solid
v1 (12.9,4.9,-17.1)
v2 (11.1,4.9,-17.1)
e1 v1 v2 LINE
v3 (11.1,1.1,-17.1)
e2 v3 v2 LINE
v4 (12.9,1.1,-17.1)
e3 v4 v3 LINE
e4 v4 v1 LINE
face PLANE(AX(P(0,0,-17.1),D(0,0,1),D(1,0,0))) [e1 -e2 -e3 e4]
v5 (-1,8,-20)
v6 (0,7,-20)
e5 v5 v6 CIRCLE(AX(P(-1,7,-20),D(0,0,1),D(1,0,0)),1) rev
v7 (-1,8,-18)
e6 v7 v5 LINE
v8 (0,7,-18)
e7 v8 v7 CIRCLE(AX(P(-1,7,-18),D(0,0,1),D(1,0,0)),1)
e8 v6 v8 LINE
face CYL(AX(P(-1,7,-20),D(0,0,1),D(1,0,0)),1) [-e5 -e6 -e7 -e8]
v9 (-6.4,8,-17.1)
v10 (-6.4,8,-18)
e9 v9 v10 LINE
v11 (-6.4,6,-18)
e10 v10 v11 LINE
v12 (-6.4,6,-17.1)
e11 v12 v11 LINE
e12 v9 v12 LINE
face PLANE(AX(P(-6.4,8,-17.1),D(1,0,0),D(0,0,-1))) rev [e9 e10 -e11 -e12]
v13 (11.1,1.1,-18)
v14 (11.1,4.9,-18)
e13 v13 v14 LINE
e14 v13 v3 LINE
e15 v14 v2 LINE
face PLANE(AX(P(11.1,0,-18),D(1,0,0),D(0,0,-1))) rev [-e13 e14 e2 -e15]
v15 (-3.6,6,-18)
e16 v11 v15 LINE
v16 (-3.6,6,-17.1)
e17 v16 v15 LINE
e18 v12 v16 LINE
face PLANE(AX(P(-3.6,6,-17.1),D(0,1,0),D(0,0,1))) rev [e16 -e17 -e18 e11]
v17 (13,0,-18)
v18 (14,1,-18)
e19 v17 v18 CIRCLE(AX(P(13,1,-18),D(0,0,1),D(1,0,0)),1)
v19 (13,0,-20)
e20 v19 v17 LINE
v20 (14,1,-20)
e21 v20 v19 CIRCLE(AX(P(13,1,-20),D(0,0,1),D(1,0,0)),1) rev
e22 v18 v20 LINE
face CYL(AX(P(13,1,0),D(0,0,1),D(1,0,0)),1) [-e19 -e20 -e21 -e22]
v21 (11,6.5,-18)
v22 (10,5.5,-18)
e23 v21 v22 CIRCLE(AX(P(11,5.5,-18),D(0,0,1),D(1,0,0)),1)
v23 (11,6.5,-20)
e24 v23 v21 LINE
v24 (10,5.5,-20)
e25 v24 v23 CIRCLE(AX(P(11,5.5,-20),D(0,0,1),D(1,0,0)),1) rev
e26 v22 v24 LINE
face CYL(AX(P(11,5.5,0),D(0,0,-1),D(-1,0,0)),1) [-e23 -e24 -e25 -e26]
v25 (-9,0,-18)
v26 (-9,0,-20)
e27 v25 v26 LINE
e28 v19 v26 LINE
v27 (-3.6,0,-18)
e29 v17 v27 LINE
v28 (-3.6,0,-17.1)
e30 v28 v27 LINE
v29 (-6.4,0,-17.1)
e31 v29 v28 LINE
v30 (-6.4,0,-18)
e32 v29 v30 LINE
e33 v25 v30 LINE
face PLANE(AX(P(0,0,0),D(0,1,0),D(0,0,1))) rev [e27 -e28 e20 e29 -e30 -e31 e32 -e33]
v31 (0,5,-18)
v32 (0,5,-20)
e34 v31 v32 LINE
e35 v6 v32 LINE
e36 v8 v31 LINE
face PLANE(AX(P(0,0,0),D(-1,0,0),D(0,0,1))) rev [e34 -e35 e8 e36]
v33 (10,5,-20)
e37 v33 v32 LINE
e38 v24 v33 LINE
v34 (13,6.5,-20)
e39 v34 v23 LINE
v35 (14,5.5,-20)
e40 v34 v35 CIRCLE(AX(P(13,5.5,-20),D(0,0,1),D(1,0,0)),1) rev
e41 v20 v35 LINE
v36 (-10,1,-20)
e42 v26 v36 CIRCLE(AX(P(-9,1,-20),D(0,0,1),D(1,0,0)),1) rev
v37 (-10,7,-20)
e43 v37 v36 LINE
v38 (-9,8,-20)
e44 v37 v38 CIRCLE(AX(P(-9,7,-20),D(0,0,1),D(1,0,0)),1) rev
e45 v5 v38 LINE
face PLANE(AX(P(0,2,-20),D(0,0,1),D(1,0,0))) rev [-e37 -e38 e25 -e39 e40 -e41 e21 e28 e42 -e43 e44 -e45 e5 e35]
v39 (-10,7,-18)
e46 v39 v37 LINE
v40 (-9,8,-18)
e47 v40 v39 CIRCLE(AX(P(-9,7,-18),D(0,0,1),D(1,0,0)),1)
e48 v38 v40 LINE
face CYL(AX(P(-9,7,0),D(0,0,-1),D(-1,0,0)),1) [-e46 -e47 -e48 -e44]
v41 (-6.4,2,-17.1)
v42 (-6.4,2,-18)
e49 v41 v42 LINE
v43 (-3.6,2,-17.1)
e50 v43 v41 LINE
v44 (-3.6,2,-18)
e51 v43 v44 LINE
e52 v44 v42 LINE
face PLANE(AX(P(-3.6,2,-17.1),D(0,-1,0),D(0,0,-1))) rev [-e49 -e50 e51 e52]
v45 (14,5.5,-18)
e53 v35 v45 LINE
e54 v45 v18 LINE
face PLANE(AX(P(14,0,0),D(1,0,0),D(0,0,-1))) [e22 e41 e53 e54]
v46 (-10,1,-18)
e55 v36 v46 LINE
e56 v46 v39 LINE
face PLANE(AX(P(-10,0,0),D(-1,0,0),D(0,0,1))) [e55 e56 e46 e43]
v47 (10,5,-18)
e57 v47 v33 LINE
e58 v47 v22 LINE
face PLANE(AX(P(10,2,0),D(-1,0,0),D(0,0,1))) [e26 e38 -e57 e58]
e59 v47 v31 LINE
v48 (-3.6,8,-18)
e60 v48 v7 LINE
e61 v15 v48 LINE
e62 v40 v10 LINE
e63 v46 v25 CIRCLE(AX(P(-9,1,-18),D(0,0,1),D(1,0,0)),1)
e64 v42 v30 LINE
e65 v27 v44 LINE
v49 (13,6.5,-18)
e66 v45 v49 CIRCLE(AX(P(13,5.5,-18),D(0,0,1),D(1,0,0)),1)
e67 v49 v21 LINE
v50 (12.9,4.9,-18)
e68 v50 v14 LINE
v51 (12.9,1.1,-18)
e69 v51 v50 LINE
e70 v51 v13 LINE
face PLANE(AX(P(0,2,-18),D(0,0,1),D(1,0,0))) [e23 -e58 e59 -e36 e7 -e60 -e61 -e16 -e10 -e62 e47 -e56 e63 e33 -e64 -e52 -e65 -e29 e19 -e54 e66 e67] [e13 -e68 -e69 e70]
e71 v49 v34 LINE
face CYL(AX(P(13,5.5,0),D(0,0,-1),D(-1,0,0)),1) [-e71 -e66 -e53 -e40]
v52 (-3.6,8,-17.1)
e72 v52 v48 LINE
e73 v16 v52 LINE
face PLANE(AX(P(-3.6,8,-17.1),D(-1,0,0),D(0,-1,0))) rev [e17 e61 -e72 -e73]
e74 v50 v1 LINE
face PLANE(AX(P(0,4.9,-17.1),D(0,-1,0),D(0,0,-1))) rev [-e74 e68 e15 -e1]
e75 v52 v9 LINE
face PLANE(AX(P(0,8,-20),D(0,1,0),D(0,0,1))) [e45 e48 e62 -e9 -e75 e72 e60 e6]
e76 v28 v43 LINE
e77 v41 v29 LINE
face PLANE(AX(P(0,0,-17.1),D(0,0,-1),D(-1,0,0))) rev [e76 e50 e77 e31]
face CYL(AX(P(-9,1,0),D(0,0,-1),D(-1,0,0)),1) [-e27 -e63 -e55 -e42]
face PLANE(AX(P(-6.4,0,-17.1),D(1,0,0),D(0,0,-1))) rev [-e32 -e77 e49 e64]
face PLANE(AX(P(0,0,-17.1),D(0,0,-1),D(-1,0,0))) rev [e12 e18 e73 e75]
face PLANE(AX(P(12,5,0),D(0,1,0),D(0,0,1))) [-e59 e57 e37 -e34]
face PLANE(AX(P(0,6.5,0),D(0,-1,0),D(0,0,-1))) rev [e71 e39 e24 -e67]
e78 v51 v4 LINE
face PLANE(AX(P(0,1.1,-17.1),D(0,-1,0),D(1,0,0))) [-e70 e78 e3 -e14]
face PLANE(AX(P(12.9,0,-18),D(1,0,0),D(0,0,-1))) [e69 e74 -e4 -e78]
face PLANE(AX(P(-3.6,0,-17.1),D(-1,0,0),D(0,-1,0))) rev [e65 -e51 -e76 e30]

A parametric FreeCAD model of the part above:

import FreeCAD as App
import Part
import Sketcher

V = App.Vector


def edges_at(feature, points):
    """Names of the edges that pass closest to the given points."""
    edges = feature.Shape.Edges
    near = lambda p: min(range(len(edges)), key=lambda i: edges[i].distToShape(Part.Vertex(*p))[0])
    return sorted({f"Edge{near(p) + 1}" for p in points})

doc = App.newDocument("Part")
params = doc.addObject("Spreadsheet::Sheet", "Params")
for row, (alias, value) in enumerate([
    ("sketch1_width", "14 mm"),
    ("sketch1_width2", "10 mm"),
    ("sketch1_height", "22 mm"),
    ("sketch1_height2", "18 mm"),
    ("pad1_length", "2 mm"),
    ("sketch2_width", "2 mm"),
    ("sketch2_height", "22 mm"),
    ("pad2_length", "4.5 mm"),
    ("sketch3_width", "8 mm"),
    ("sketch3_width2", "4 mm"),
    ("sketch3_height", "22 mm"),
    ("sketch3_height2", "18 mm"),
    ("pad3_length", "2 mm"),
    ("sketch4_width", "8 mm"),
    ("sketch4_height", "20 mm"),
    ("pocket1_length", "26 mm"),
    ("sketch5_width", "0.9 mm"),
    ("sketch5_height", "1.9 mm"),
    ("sketch5_height2", "3.8 mm"),
    ("pad4_length", "0.9 mm"),
    ("sketch6_width", "8 mm"),
    ("sketch6_height", "2 mm"),
    ("pad5_length", "8 mm"),
    ("sketch7_height", "2 mm"),
    ("sketch7_width", "2.8 mm"),
    ("pad6_length", "0.9 mm"),
    ("sketch8_width", "0.9 mm"),
    ("sketch9_width", "3 mm"),
    ("sketch9_height", "2 mm"),
    ("sketch10_height", "2 mm"),
    ("sketch10_width", "1.6 mm"),
    ("sketch10_width2", "3.8 mm"),
    ("sketch10_width3", "1.1 mm"),
    ("sketch10_height2", "0.9 mm"),
    ("pad8_length", "2 mm"),
    ("sketch11_width", "1.1 mm"),
    ("sketch11_height", "3.8 mm"),
    ("pad9_length", "0.9 mm"),
    ("sketch12_width", "1.1 mm"),
    ("sketch12_height", "3.8 mm"),
    ("pocket3_length", "0.9 mm"),
    ("fillet_radius", "1 mm"),
], start=1):
    params.set(f"A{row}", alias)
    params.set(f"B{row}", "=" + value)
    params.setAlias(f"B{row}", alias)

body = doc.addObject("PartDesign::Body", "Body")

sketch1 = body.newObject("Sketcher::SketchObject", "Sketch")
sketch1.AttachmentSupport = (doc.getObject("XZ_Plane"), [""])
sketch1.MapMode = "FlatFace"
sketch1.addGeometry(Part.LineSegment(V(-2, -20, 0), V(-2, 2, 0)), False)
sketch1.addGeometry(Part.LineSegment(V(-2, 2, 0), V(12, 2, 0)), False)
sketch1.addGeometry(Part.LineSegment(V(12, 2, 0), V(12, -20, 0)), False)
sketch1.addGeometry(Part.LineSegment(V(12, -20, 0), V(-2, -20, 0)), False)
sketch1.addGeometry(Part.LineSegment(V(10, 0, 0), V(0, 0, 0)), False)
sketch1.addGeometry(Part.LineSegment(V(0, 0, 0), V(0, -18, 0)), False)
sketch1.addGeometry(Part.LineSegment(V(0, -18, 0), V(10, -18, 0)), False)
sketch1.addGeometry(Part.LineSegment(V(10, -18, 0), V(10, 0, 0)), False)
sketch1.addConstraint(Sketcher.Constraint("Coincident", 0, 2, 1, 1))
sketch1.addConstraint(Sketcher.Constraint("Coincident", 1, 2, 2, 1))
sketch1.addConstraint(Sketcher.Constraint("Coincident", 2, 2, 3, 1))
sketch1.addConstraint(Sketcher.Constraint("Coincident", 3, 2, 0, 1))
sketch1.addConstraint(Sketcher.Constraint("Coincident", 4, 2, 5, 1))
sketch1.addConstraint(Sketcher.Constraint("Coincident", 5, 2, 6, 1))
sketch1.addConstraint(Sketcher.Constraint("Coincident", 6, 2, 7, 1))
sketch1.addConstraint(Sketcher.Constraint("Coincident", 7, 2, 4, 1))
sketch1.addConstraint(Sketcher.Constraint("Vertical", 0))
sketch1.addConstraint(Sketcher.Constraint("Horizontal", 1))
sketch1.addConstraint(Sketcher.Constraint("Vertical", 2))
sketch1.addConstraint(Sketcher.Constraint("Horizontal", 3))
sketch1.addConstraint(Sketcher.Constraint("Horizontal", 4))
sketch1.addConstraint(Sketcher.Constraint("Vertical", 5))
sketch1.addConstraint(Sketcher.Constraint("Horizontal", 6))
sketch1.addConstraint(Sketcher.Constraint("Vertical", 7))
sketch1.addConstraint(Sketcher.Constraint("Coincident", 4, 2, -1, 1))
sketch1.addConstraint(Sketcher.Constraint("DistanceX", 1, 1, 1, 2, 14.0))
sketch1.addConstraint(Sketcher.Constraint("DistanceX", 4, 2, 4, 1, 10.0))
sketch1.addConstraint(Sketcher.Constraint("DistanceY", 0, 1, 0, 2, 22.0))
sketch1.addConstraint(Sketcher.Constraint("DistanceY", 5, 2, 5, 1, 18.0))
sketch1.addConstraint(Sketcher.Constraint("DistanceX", 0, 2, -1, 1, 2.0))
sketch1.addConstraint(Sketcher.Constraint("DistanceY", -1, 1, 0, 2, 2.0))
sketch1.setExpression("Constraints[17]", "Params.sketch1_width")
sketch1.setExpression("Constraints[18]", "Params.sketch1_width2")
sketch1.setExpression("Constraints[19]", "Params.sketch1_height")
sketch1.setExpression("Constraints[20]", "Params.sketch1_height2")
pad1 = body.newObject("PartDesign::Pad", "Pad")
pad1.Profile = sketch1
pad1.setExpression("Length", "Params.pad1_length")
pad1.Reversed = True

sketch2 = body.newObject("Sketcher::SketchObject", "Sketch001")
sketch2.AttachmentSupport = (doc.getObject("XZ_Plane"), [""])
sketch2.MapMode = "FlatFace"
sketch2.AttachmentOffset = App.Placement(V(0, 0, -2), App.Rotation())
sketch2.addGeometry(Part.LineSegment(V(10, -20, 0), V(10, 2, 0)), False)
sketch2.addGeometry(Part.LineSegment(V(10, 2, 0), V(12, 2, 0)), False)
sketch2.addGeometry(Part.LineSegment(V(12, 2, 0), V(12, -20, 0)), False)
sketch2.addGeometry(Part.LineSegment(V(12, -20, 0), V(10, -20, 0)), False)
sketch2.addConstraint(Sketcher.Constraint("Coincident", 0, 2, 1, 1))
sketch2.addConstraint(Sketcher.Constraint("Coincident", 1, 2, 2, 1))
sketch2.addConstraint(Sketcher.Constraint("Coincident", 2, 2, 3, 1))
sketch2.addConstraint(Sketcher.Constraint("Coincident", 3, 2, 0, 1))
sketch2.addConstraint(Sketcher.Constraint("Vertical", 0))
sketch2.addConstraint(Sketcher.Constraint("Horizontal", 1))
sketch2.addConstraint(Sketcher.Constraint("Vertical", 2))
sketch2.addConstraint(Sketcher.Constraint("Horizontal", 3))
sketch2.addConstraint(Sketcher.Constraint("DistanceX", 1, 1, 1, 2, 2.0))
sketch2.addConstraint(Sketcher.Constraint("DistanceY", 0, 1, 0, 2, 22.0))
sketch2.addConstraint(Sketcher.Constraint("DistanceX", -1, 1, 0, 2, 10.0))
sketch2.addConstraint(Sketcher.Constraint("DistanceY", -1, 1, 0, 2, 2.0))
sketch2.setExpression("Constraints[8]", "Params.sketch2_width")
sketch2.setExpression("Constraints[9]", "Params.sketch2_height")
pad2 = body.newObject("PartDesign::Pad", "Pad001")
pad2.Profile = sketch2
pad2.setExpression("Length", "Params.pad2_length")
pad2.Reversed = True

sketch3 = body.newObject("Sketcher::SketchObject", "Sketch002")
sketch3.AttachmentSupport = (doc.getObject("YZ_Plane"), [""])
sketch3.MapMode = "FlatFace"
sketch3.AttachmentOffset = App.Placement(V(0, 0, -2), App.Rotation())
sketch3.addGeometry(Part.LineSegment(V(8, -20, 0), V(0, -20, 0)), False)
sketch3.addGeometry(Part.LineSegment(V(0, -20, 0), V(0, 2, 0)), False)
sketch3.addGeometry(Part.LineSegment(V(0, 2, 0), V(8, 2, 0)), False)
sketch3.addGeometry(Part.LineSegment(V(8, 2, 0), V(8, -20, 0)), False)
sketch3.addGeometry(Part.LineSegment(V(2, 0, 0), V(2, -18, 0)), False)
sketch3.addGeometry(Part.LineSegment(V(2, -18, 0), V(6, -18, 0)), False)
sketch3.addGeometry(Part.LineSegment(V(6, -18, 0), V(6, 0, 0)), False)
sketch3.addGeometry(Part.LineSegment(V(6, 0, 0), V(2, 0, 0)), False)
sketch3.addConstraint(Sketcher.Constraint("Coincident", 0, 2, 1, 1))
sketch3.addConstraint(Sketcher.Constraint("Coincident", 1, 2, 2, 1))
sketch3.addConstraint(Sketcher.Constraint("Coincident", 2, 2, 3, 1))
sketch3.addConstraint(Sketcher.Constraint("Coincident", 3, 2, 0, 1))
sketch3.addConstraint(Sketcher.Constraint("Coincident", 4, 2, 5, 1))
sketch3.addConstraint(Sketcher.Constraint("Coincident", 5, 2, 6, 1))
sketch3.addConstraint(Sketcher.Constraint("Coincident", 6, 2, 7, 1))
sketch3.addConstraint(Sketcher.Constraint("Coincident", 7, 2, 4, 1))
sketch3.addConstraint(Sketcher.Constraint("Horizontal", 0))
sketch3.addConstraint(Sketcher.Constraint("Vertical", 1))
sketch3.addConstraint(Sketcher.Constraint("Horizontal", 2))
sketch3.addConstraint(Sketcher.Constraint("Vertical", 3))
sketch3.addConstraint(Sketcher.Constraint("Vertical", 4))
sketch3.addConstraint(Sketcher.Constraint("Horizontal", 5))
sketch3.addConstraint(Sketcher.Constraint("Vertical", 6))
sketch3.addConstraint(Sketcher.Constraint("Horizontal", 7))
sketch3.addConstraint(Sketcher.Constraint("PointOnObject", 0, 2, -2))
sketch3.addConstraint(Sketcher.Constraint("PointOnObject", 6, 2, -1))
sketch3.addConstraint(Sketcher.Constraint("DistanceX", 0, 2, 0, 1, 8.0))
sketch3.addConstraint(Sketcher.Constraint("DistanceX", 5, 1, 5, 2, 4.0))
sketch3.addConstraint(Sketcher.Constraint("DistanceY", 1, 1, 1, 2, 22.0))
sketch3.addConstraint(Sketcher.Constraint("DistanceY", 4, 2, 4, 1, 18.0))
sketch3.addConstraint(Sketcher.Constraint("DistanceY", 0, 2, -1, 1, 20.0))
sketch3.addConstraint(Sketcher.Constraint("DistanceX", -1, 1, 4, 2, 2.0))
sketch3.setExpression("Constraints[18]", "Params.sketch3_width")
sketch3.setExpression("Constraints[19]", "Params.sketch3_width2")
sketch3.setExpression("Constraints[20]", "Params.sketch3_height")
sketch3.setExpression("Constraints[21]", "Params.sketch3_height2")
pad3 = body.newObject("PartDesign::Pad", "Pad002")
pad3.Profile = sketch3
pad3.setExpression("Length", "Params.pad3_length")

sketch4 = body.newObject("Sketcher::SketchObject", "Sketch003")
sketch4.AttachmentSupport = (doc.getObject("YZ_Plane"), [""])
sketch4.MapMode = "FlatFace"
sketch4.AttachmentOffset = App.Placement(V(0, 0, 12), App.Rotation())
sketch4.addGeometry(Part.LineSegment(V(8, 2, 0), V(0, 2, 0)), False)
sketch4.addGeometry(Part.LineSegment(V(0, 2, 0), V(0, -18, 0)), False)
sketch4.addGeometry(Part.LineSegment(V(0, -18, 0), V(8, -18, 0)), False)
sketch4.addGeometry(Part.LineSegment(V(8, -18, 0), V(8, 2, 0)), False)
sketch4.addConstraint(Sketcher.Constraint("Coincident", 0, 2, 1, 1))
sketch4.addConstraint(Sketcher.Constraint("Coincident", 1, 2, 2, 1))
sketch4.addConstraint(Sketcher.Constraint("Coincident", 2, 2, 3, 1))
sketch4.addConstraint(Sketcher.Constraint("Coincident", 3, 2, 0, 1))
sketch4.addConstraint(Sketcher.Constraint("Horizontal", 0))
sketch4.addConstraint(Sketcher.Constraint("Vertical", 1))
sketch4.addConstraint(Sketcher.Constraint("Horizontal", 2))
sketch4.addConstraint(Sketcher.Constraint("Vertical", 3))
sketch4.addConstraint(Sketcher.Constraint("PointOnObject", 0, 2, -2))
sketch4.addConstraint(Sketcher.Constraint("DistanceX", 0, 2, 0, 1, 8.0))
sketch4.addConstraint(Sketcher.Constraint("DistanceY", 1, 2, 1, 1, 20.0))
sketch4.addConstraint(Sketcher.Constraint("DistanceY", -1, 1, 0, 2, 2.0))
sketch4.setExpression("Constraints[9]", "Params.sketch4_width")
sketch4.setExpression("Constraints[10]", "Params.sketch4_height")
pocket1 = body.newObject("PartDesign::Pocket", "Pocket")
pocket1.Profile = sketch4
pocket1.setExpression("Length", "Params.pocket1_length")

sketch5 = body.newObject("Sketcher::SketchObject", "Sketch004")
sketch5.AttachmentSupport = (doc.getObject("XY_Plane"), [""])
sketch5.MapMode = "FlatFace"
sketch5.AttachmentOffset = App.Placement(V(0, 0, -18), App.Rotation())
sketch5.addGeometry(Part.LineSegment(V(-2, 8, 0), V(-2, 6.1, 0)), False)
sketch5.addGeometry(Part.LineSegment(V(-2, 6.1, 0), V(-1.1, 6.1, 0)), False)
sketch5.addGeometry(Part.LineSegment(V(-1.1, 6.1, 0), V(-1.1, 8, 0)), False)
sketch5.addGeometry(Part.LineSegment(V(-1.1, 8, 0), V(-2, 8, 0)), False)
sketch5.addGeometry(Part.LineSegment(V(-2, 1.9, 0), V(-2, 0, 0)), False)
sketch5.addGeometry(Part.LineSegment(V(-2, 0, 0), V(-1.1, 0, 0)), False)
sketch5.addGeometry(Part.LineSegment(V(-1.1, 0, 0), V(-1.1, 1.9, 0)), False)
sketch5.addGeometry(Part.LineSegment(V(-1.1, 1.9, 0), V(-2, 1.9, 0)), False)
sketch5.addGeometry(Part.LineSegment(V(11.1, 4.9, 0), V(11.1, 1.1, 0)), False)
sketch5.addGeometry(Part.LineSegment(V(11.1, 1.1, 0), V(12, 1.1, 0)), False)
sketch5.addGeometry(Part.LineSegment(V(12, 1.1, 0), V(12, 4.9, 0)), False)
sketch5.addGeometry(Part.LineSegment(V(12, 4.9, 0), V(11.1, 4.9, 0)), False)
sketch5.addConstraint(Sketcher.Constraint("Coincident", 0, 2, 1, 1))
sketch5.addConstraint(Sketcher.Constraint("Coincident", 1, 2, 2, 1))
sketch5.addConstraint(Sketcher.Constraint("Coincident", 2, 2, 3, 1))
sketch5.addConstraint(Sketcher.Constraint("Coincident", 3, 2, 0, 1))
sketch5.addConstraint(Sketcher.Constraint("Coincident", 4, 2, 5, 1))
sketch5.addConstraint(Sketcher.Constraint("Coincident", 5, 2, 6, 1))
sketch5.addConstraint(Sketcher.Constraint("Coincident", 6, 2, 7, 1))
sketch5.addConstraint(Sketcher.Constraint("Coincident", 7, 2, 4, 1))
sketch5.addConstraint(Sketcher.Constraint("Coincident", 8, 2, 9, 1))
sketch5.addConstraint(Sketcher.Constraint("Coincident", 9, 2, 10, 1))
sketch5.addConstraint(Sketcher.Constraint("Coincident", 10, 2, 11, 1))
sketch5.addConstraint(Sketcher.Constraint("Coincident", 11, 2, 8, 1))
sketch5.addConstraint(Sketcher.Constraint("Vertical", 0))
sketch5.addConstraint(Sketcher.Constraint("Horizontal", 1))
sketch5.addConstraint(Sketcher.Constraint("Vertical", 2))
sketch5.addConstraint(Sketcher.Constraint("Horizontal", 3))
sketch5.addConstraint(Sketcher.Constraint("Vertical", 4))
sketch5.addConstraint(Sketcher.Constraint("Horizontal", 5))
sketch5.addConstraint(Sketcher.Constraint("Vertical", 6))
sketch5.addConstraint(Sketcher.Constraint("Horizontal", 7))
sketch5.addConstraint(Sketcher.Constraint("Vertical", 8))
sketch5.addConstraint(Sketcher.Constraint("Horizontal", 9))
sketch5.addConstraint(Sketcher.Constraint("Vertical", 10))
sketch5.addConstraint(Sketcher.Constraint("Horizontal", 11))
sketch5.addConstraint(Sketcher.Constraint("PointOnObject", 4, 2, -1))
sketch5.addConstraint(Sketcher.Constraint("Vertical", 3, 2, 4, 2))
sketch5.addConstraint(Sketcher.Constraint("Vertical", 2, 2, 5, 2))
sketch5.addConstraint(Sketcher.Constraint("Equal", 7, 9))
sketch5.addConstraint(Sketcher.Constraint("Equal", 2, 4))
sketch5.addConstraint(Sketcher.Constraint("DistanceX", 1, 1, 1, 2, 0.9))
sketch5.addConstraint(Sketcher.Constraint("DistanceY", 0, 2, 0, 1, 1.9))
sketch5.addConstraint(Sketcher.Constraint("DistanceY", 8, 2, 8, 1, 3.8))
sketch5.addConstraint(Sketcher.Constraint("DistanceX", 0, 2, -1, 1, 2.0))
sketch5.addConstraint(Sketcher.Constraint("DistanceY", -1, 1, 2, 2, 8.0))
sketch5.addConstraint(Sketcher.Constraint("DistanceX", -1, 1, 9, 2, 12.0))
sketch5.addConstraint(Sketcher.Constraint("DistanceY", 8, 2, 1, 2, 5.0))
sketch5.setExpression("Constraints[29]", "Params.sketch5_width")
sketch5.setExpression("Constraints[30]", "Params.sketch5_height")
sketch5.setExpression("Constraints[31]", "Params.sketch5_height2")
pad4 = body.newObject("PartDesign::Pad", "Pad003")
pad4.Profile = sketch5
pad4.setExpression("Length", "Params.pad4_length")

sketch6 = body.newObject("Sketcher::SketchObject", "Sketch005")
sketch6.AttachmentSupport = (doc.getObject("YZ_Plane"), [""])
sketch6.MapMode = "FlatFace"
sketch6.AttachmentOffset = App.Placement(V(0, 0, -2), App.Rotation())
sketch6.addGeometry(Part.LineSegment(V(8, -18, 0), V(8, -20, 0)), False)
sketch6.addGeometry(Part.LineSegment(V(8, -20, 0), V(0, -20, 0)), False)
sketch6.addGeometry(Part.LineSegment(V(0, -20, 0), V(0, -18, 0)), False)
sketch6.addGeometry(Part.LineSegment(V(0, -18, 0), V(8, -18, 0)), False)
sketch6.addConstraint(Sketcher.Constraint("Coincident", 0, 2, 1, 1))
sketch6.addConstraint(Sketcher.Constraint("Coincident", 1, 2, 2, 1))
sketch6.addConstraint(Sketcher.Constraint("Coincident", 2, 2, 3, 1))
sketch6.addConstraint(Sketcher.Constraint("Coincident", 3, 2, 0, 1))
sketch6.addConstraint(Sketcher.Constraint("Vertical", 0))
sketch6.addConstraint(Sketcher.Constraint("Horizontal", 1))
sketch6.addConstraint(Sketcher.Constraint("Vertical", 2))
sketch6.addConstraint(Sketcher.Constraint("Horizontal", 3))
sketch6.addConstraint(Sketcher.Constraint("PointOnObject", 1, 2, -2))
sketch6.addConstraint(Sketcher.Constraint("DistanceX", 1, 2, 1, 1, 8.0))
sketch6.addConstraint(Sketcher.Constraint("DistanceY", 0, 2, 0, 1, 2.0))
sketch6.addConstraint(Sketcher.Constraint("DistanceY", 0, 2, -1, 1, 20.0))
sketch6.setExpression("Constraints[9]", "Params.sketch6_width")
sketch6.setExpression("Constraints[10]", "Params.sketch6_height")
pad5 = body.newObject("PartDesign::Pad", "Pad004")
pad5.Profile = sketch6
pad5.setExpression("Length", "Params.pad5_length")
pad5.Reversed = True

sketch7 = body.newObject("Sketcher::SketchObject", "Sketch006")
sketch7.AttachmentSupport = (doc.getObject("XY_Plane"), [""])
sketch7.MapMode = "FlatFace"
sketch7.AttachmentOffset = App.Placement(V(0, 0, -18), App.Rotation())
sketch7.addGeometry(Part.LineSegment(V(-6.4, 8, 0), V(-6.4, 6, 0)), False)
sketch7.addGeometry(Part.LineSegment(V(-6.4, 6, 0), V(-3.6, 6, 0)), False)
sketch7.addGeometry(Part.LineSegment(V(-3.6, 6, 0), V(-3.6, 8, 0)), False)
sketch7.addGeometry(Part.LineSegment(V(-3.6, 8, 0), V(-6.4, 8, 0)), False)
sketch7.addGeometry(Part.LineSegment(V(-6.4, 2, 0), V(-6.4, 0, 0)), False)
sketch7.addGeometry(Part.LineSegment(V(-6.4, 0, 0), V(-3.6, 0, 0)), False)
sketch7.addGeometry(Part.LineSegment(V(-3.6, 0, 0), V(-3.6, 2, 0)), False)
sketch7.addGeometry(Part.LineSegment(V(-3.6, 2, 0), V(-6.4, 2, 0)), False)
sketch7.addConstraint(Sketcher.Constraint("Coincident", 0, 2, 1, 1))
sketch7.addConstraint(Sketcher.Constraint("Coincident", 1, 2, 2, 1))
sketch7.addConstraint(Sketcher.Constraint("Coincident", 2, 2, 3, 1))
sketch7.addConstraint(Sketcher.Constraint("Coincident", 3, 2, 0, 1))
sketch7.addConstraint(Sketcher.Constraint("Coincident", 4, 2, 5, 1))
sketch7.addConstraint(Sketcher.Constraint("Coincident", 5, 2, 6, 1))
sketch7.addConstraint(Sketcher.Constraint("Coincident", 6, 2, 7, 1))
sketch7.addConstraint(Sketcher.Constraint("Coincident", 7, 2, 4, 1))
sketch7.addConstraint(Sketcher.Constraint("Vertical", 0))
sketch7.addConstraint(Sketcher.Constraint("Horizontal", 1))
sketch7.addConstraint(Sketcher.Constraint("Vertical", 2))
sketch7.addConstraint(Sketcher.Constraint("Horizontal", 3))
sketch7.addConstraint(Sketcher.Constraint("Vertical", 4))
sketch7.addConstraint(Sketcher.Constraint("Horizontal", 5))
sketch7.addConstraint(Sketcher.Constraint("Vertical", 6))
sketch7.addConstraint(Sketcher.Constraint("Horizontal", 7))
sketch7.addConstraint(Sketcher.Constraint("PointOnObject", 4, 2, -1))
sketch7.addConstraint(Sketcher.Constraint("Vertical", 3, 2, 4, 2))
sketch7.addConstraint(Sketcher.Constraint("Vertical", 2, 2, 5, 2))
sketch7.addConstraint(Sketcher.Constraint("Equal", 2, 4))
sketch7.addConstraint(Sketcher.Constraint("DistanceY", 0, 2, 0, 1, 2.0))
sketch7.addConstraint(Sketcher.Constraint("DistanceX", 1, 1, 1, 2, 2.8))
sketch7.addConstraint(Sketcher.Constraint("DistanceY", -1, 1, 0, 2, 6.0))
sketch7.addConstraint(Sketcher.Constraint("DistanceX", 0, 2, -1, 1, 6.4))
sketch7.setExpression("Constraints[20]", "Params.sketch7_height")
sketch7.setExpression("Constraints[21]", "Params.sketch7_width")
pad6 = body.newObject("PartDesign::Pad", "Pad005")
pad6.Profile = sketch7
pad6.setExpression("Length", "Params.pad6_length")

sketch8 = body.newObject("Sketcher::SketchObject", "Sketch007")
sketch8.AttachmentSupport = (doc.getObject("XZ_Plane"), [""])
sketch8.MapMode = "FlatFace"
sketch8.AttachmentOffset = App.Placement(V(0, 0, -8), App.Rotation())
sketch8.addGeometry(Part.LineSegment(V(-2, -18, 0), V(-2, -17.1, 0)), False)
sketch8.addGeometry(Part.LineSegment(V(-2, -17.1, 0), V(-1.1, -17.1, 0)), False)
sketch8.addGeometry(Part.LineSegment(V(-1.1, -17.1, 0), V(-1.1, -18, 0)), False)
sketch8.addGeometry(Part.LineSegment(V(-1.1, -18, 0), V(-2, -18, 0)), False)
sketch8.addConstraint(Sketcher.Constraint("Coincident", 0, 2, 1, 1))
sketch8.addConstraint(Sketcher.Constraint("Coincident", 1, 2, 2, 1))
sketch8.addConstraint(Sketcher.Constraint("Coincident", 2, 2, 3, 1))
sketch8.addConstraint(Sketcher.Constraint("Coincident", 3, 2, 0, 1))
sketch8.addConstraint(Sketcher.Constraint("Vertical", 0))
sketch8.addConstraint(Sketcher.Constraint("Horizontal", 1))
sketch8.addConstraint(Sketcher.Constraint("Vertical", 2))
sketch8.addConstraint(Sketcher.Constraint("Horizontal", 3))
sketch8.addConstraint(Sketcher.Constraint("Equal", 3, 0))
sketch8.addConstraint(Sketcher.Constraint("DistanceX", 1, 1, 1, 2, 0.9))
sketch8.addConstraint(Sketcher.Constraint("DistanceX", 0, 2, -1, 1, 2.0))
sketch8.addConstraint(Sketcher.Constraint("DistanceY", 2, 2, -1, 1, 18.0))
sketch8.setExpression("Constraints[9]", "Params.sketch8_width")
pocket2 = body.newObject("PartDesign::Pocket", "Pocket001")
pocket2.Profile = sketch8
pocket2.Type = "ThroughAll"
pocket2.Reversed = True

sketch9 = body.newObject("Sketcher::SketchObject", "Sketch008")
sketch9.AttachmentSupport = (doc.getObject("YZ_Plane"), [""])
sketch9.MapMode = "FlatFace"
sketch9.addGeometry(Part.LineSegment(V(5, -18, 0), V(2, -18, 0)), False)
sketch9.addGeometry(Part.LineSegment(V(2, -18, 0), V(2, -20, 0)), False)
sketch9.addGeometry(Part.LineSegment(V(2, -20, 0), V(5, -20, 0)), False)
sketch9.addGeometry(Part.LineSegment(V(5, -20, 0), V(5, -18, 0)), False)
sketch9.addConstraint(Sketcher.Constraint("Coincident", 0, 2, 1, 1))
sketch9.addConstraint(Sketcher.Constraint("Coincident", 1, 2, 2, 1))
sketch9.addConstraint(Sketcher.Constraint("Coincident", 2, 2, 3, 1))
sketch9.addConstraint(Sketcher.Constraint("Coincident", 3, 2, 0, 1))
sketch9.addConstraint(Sketcher.Constraint("Horizontal", 0))
sketch9.addConstraint(Sketcher.Constraint("Vertical", 1))
sketch9.addConstraint(Sketcher.Constraint("Horizontal", 2))
sketch9.addConstraint(Sketcher.Constraint("Vertical", 3))
sketch9.addConstraint(Sketcher.Constraint("DistanceX", 0, 2, 0, 1, 3.0))
sketch9.addConstraint(Sketcher.Constraint("DistanceY", 1, 2, 1, 1, 2.0))
sketch9.addConstraint(Sketcher.Constraint("DistanceX", -1, 1, 0, 2, 2.0))
sketch9.addConstraint(Sketcher.Constraint("DistanceY", 0, 2, -1, 1, 18.0))
sketch9.setExpression("Constraints[8]", "Params.sketch9_width")
sketch9.setExpression("Constraints[9]", "Params.sketch9_height")
pad7 = body.newObject("PartDesign::Pad", "Pad006")
pad7.Profile = sketch9
pad7.Type = "UpToFirst"

sketch10 = body.newObject("Sketcher::SketchObject", "Sketch009")
sketch10.AttachmentSupport = (doc.getObject("YZ_Plane"), [""])
sketch10.MapMode = "FlatFace"
sketch10.AttachmentOffset = App.Placement(V(0, 0, 12), App.Rotation())
sketch10.addGeometry(Part.LineSegment(V(6.5, -18, 0), V(4.9, -18, 0)), False)
sketch10.addGeometry(Part.LineSegment(V(4.9, -18, 0), V(4.9, -17.1, 0)), False)
sketch10.addGeometry(Part.LineSegment(V(4.9, -17.1, 0), V(1.1, -17.1, 0)), False)
sketch10.addGeometry(Part.LineSegment(V(1.1, -17.1, 0), V(1.1, -18, 0)), False)
sketch10.addGeometry(Part.LineSegment(V(1.1, -18, 0), V(0, -18, 0)), False)
sketch10.addGeometry(Part.LineSegment(V(0, -18, 0), V(0, -20, 0)), False)
sketch10.addGeometry(Part.LineSegment(V(0, -20, 0), V(6.5, -20, 0)), False)
sketch10.addGeometry(Part.LineSegment(V(6.5, -20, 0), V(6.5, -18, 0)), False)
sketch10.addConstraint(Sketcher.Constraint("Coincident", 0, 2, 1, 1))
sketch10.addConstraint(Sketcher.Constraint("Coincident", 1, 2, 2, 1))
sketch10.addConstraint(Sketcher.Constraint("Coincident", 2, 2, 3, 1))
sketch10.addConstraint(Sketcher.Constraint("Coincident", 3, 2, 4, 1))
sketch10.addConstraint(Sketcher.Constraint("Coincident", 4, 2, 5, 1))
sketch10.addConstraint(Sketcher.Constraint("Coincident", 5, 2, 6, 1))
sketch10.addConstraint(Sketcher.Constraint("Coincident", 6, 2, 7, 1))
sketch10.addConstraint(Sketcher.Constraint("Coincident", 7, 2, 0, 1))
sketch10.addConstraint(Sketcher.Constraint("Horizontal", 0))
sketch10.addConstraint(Sketcher.Constraint("Vertical", 1))
sketch10.addConstraint(Sketcher.Constraint("Horizontal", 2))
sketch10.addConstraint(Sketcher.Constraint("Vertical", 3))
sketch10.addConstraint(Sketcher.Constraint("Horizontal", 4))
sketch10.addConstraint(Sketcher.Constraint("Vertical", 5))
sketch10.addConstraint(Sketcher.Constraint("Horizontal", 6))
sketch10.addConstraint(Sketcher.Constraint("Vertical", 7))
sketch10.addConstraint(Sketcher.Constraint("PointOnObject", 4, 2, -2))
sketch10.addConstraint(Sketcher.Constraint("Horizontal", 0, 2, 3, 2))
sketch10.addConstraint(Sketcher.Constraint("DistanceY", 5, 2, 5, 1, 2.0))
sketch10.addConstraint(Sketcher.Constraint("DistanceX", 0, 2, 0, 1, 1.6))
sketch10.addConstraint(Sketcher.Constraint("DistanceX", 2, 2, 2, 1, 3.8))
sketch10.addConstraint(Sketcher.Constraint("DistanceX", 4, 2, 4, 1, 1.1))
sketch10.addConstraint(Sketcher.Constraint("DistanceY", 1, 1, 1, 2, 0.9))
sketch10.addConstraint(Sketcher.Constraint("DistanceY", 0, 2, -1, 1, 18.0))
sketch10.setExpression("Constraints[18]", "Params.sketch10_height")
sketch10.setExpression("Constraints[19]", "Params.sketch10_width")
sketch10.setExpression("Constraints[20]", "Params.sketch10_width2")
sketch10.setExpression("Constraints[21]", "Params.sketch10_width3")
sketch10.setExpression("Constraints[22]", "Params.sketch10_height2")
pad8 = body.newObject("PartDesign::Pad", "Pad007")
pad8.Profile = sketch10
pad8.setExpression("Length", "Params.pad8_length")

sketch11 = body.newObject("Sketcher::SketchObject", "Sketch010")
sketch11.AttachmentSupport = (doc.getObject("XY_Plane"), [""])
sketch11.MapMode = "FlatFace"
sketch11.AttachmentOffset = App.Placement(V(0, 0, -18), App.Rotation())
sketch11.addGeometry(Part.LineSegment(V(10, 4.9, 0), V(10, 1.1, 0)), False)
sketch11.addGeometry(Part.LineSegment(V(10, 1.1, 0), V(11.1, 1.1, 0)), False)
sketch11.addGeometry(Part.LineSegment(V(11.1, 1.1, 0), V(11.1, 4.9, 0)), False)
sketch11.addGeometry(Part.LineSegment(V(11.1, 4.9, 0), V(10, 4.9, 0)), False)
sketch11.addConstraint(Sketcher.Constraint("Coincident", 0, 2, 1, 1))
sketch11.addConstraint(Sketcher.Constraint("Coincident", 1, 2, 2, 1))
sketch11.addConstraint(Sketcher.Constraint("Coincident", 2, 2, 3, 1))
sketch11.addConstraint(Sketcher.Constraint("Coincident", 3, 2, 0, 1))
sketch11.addConstraint(Sketcher.Constraint("Vertical", 0))
sketch11.addConstraint(Sketcher.Constraint("Horizontal", 1))
sketch11.addConstraint(Sketcher.Constraint("Vertical", 2))
sketch11.addConstraint(Sketcher.Constraint("Horizontal", 3))
sketch11.addConstraint(Sketcher.Constraint("DistanceX", 1, 1, 1, 2, 1.1))
sketch11.addConstraint(Sketcher.Constraint("DistanceY", 0, 2, 0, 1, 3.8))
sketch11.addConstraint(Sketcher.Constraint("DistanceX", -1, 1, 0, 2, 10.0))
sketch11.addConstraint(Sketcher.Constraint("DistanceY", -1, 1, 0, 2, 1.1))
sketch11.setExpression("Constraints[8]", "Params.sketch11_width")
sketch11.setExpression("Constraints[9]", "Params.sketch11_height")
pad9 = body.newObject("PartDesign::Pad", "Pad008")
pad9.Profile = sketch11
pad9.setExpression("Length", "Params.pad9_length")

sketch12 = body.newObject("Sketcher::SketchObject", "Sketch011")
sketch12.AttachmentSupport = (doc.getObject("XY_Plane"), [""])
sketch12.MapMode = "FlatFace"
sketch12.AttachmentOffset = App.Placement(V(0, 0, -17.1), App.Rotation())
sketch12.addGeometry(Part.LineSegment(V(10, 4.9, 0), V(10, 1.1, 0)), False)
sketch12.addGeometry(Part.LineSegment(V(10, 1.1, 0), V(11.1, 1.1, 0)), False)
sketch12.addGeometry(Part.LineSegment(V(11.1, 1.1, 0), V(11.1, 4.9, 0)), False)
sketch12.addGeometry(Part.LineSegment(V(11.1, 4.9, 0), V(10, 4.9, 0)), False)
sketch12.addGeometry(Part.LineSegment(V(12.9, 4.9, 0), V(12.9, 1.1, 0)), False)
sketch12.addGeometry(Part.LineSegment(V(12.9, 1.1, 0), V(14, 1.1, 0)), False)
sketch12.addGeometry(Part.LineSegment(V(14, 1.1, 0), V(14, 4.9, 0)), False)
sketch12.addGeometry(Part.LineSegment(V(14, 4.9, 0), V(12.9, 4.9, 0)), False)
sketch12.addConstraint(Sketcher.Constraint("Coincident", 0, 2, 1, 1))
sketch12.addConstraint(Sketcher.Constraint("Coincident", 1, 2, 2, 1))
sketch12.addConstraint(Sketcher.Constraint("Coincident", 2, 2, 3, 1))
sketch12.addConstraint(Sketcher.Constraint("Coincident", 3, 2, 0, 1))
sketch12.addConstraint(Sketcher.Constraint("Coincident", 4, 2, 5, 1))
sketch12.addConstraint(Sketcher.Constraint("Coincident", 5, 2, 6, 1))
sketch12.addConstraint(Sketcher.Constraint("Coincident", 6, 2, 7, 1))
sketch12.addConstraint(Sketcher.Constraint("Coincident", 7, 2, 4, 1))
sketch12.addConstraint(Sketcher.Constraint("Vertical", 0))
sketch12.addConstraint(Sketcher.Constraint("Horizontal", 1))
sketch12.addConstraint(Sketcher.Constraint("Vertical", 2))
sketch12.addConstraint(Sketcher.Constraint("Horizontal", 3))
sketch12.addConstraint(Sketcher.Constraint("Vertical", 4))
sketch12.addConstraint(Sketcher.Constraint("Horizontal", 5))
sketch12.addConstraint(Sketcher.Constraint("Vertical", 6))
sketch12.addConstraint(Sketcher.Constraint("Horizontal", 7))
sketch12.addConstraint(Sketcher.Constraint("Horizontal", 1, 2, 4, 2))
sketch12.addConstraint(Sketcher.Constraint("Horizontal", 3, 2, 6, 2))
sketch12.addConstraint(Sketcher.Constraint("Equal", 3, 5))
sketch12.addConstraint(Sketcher.Constraint("DistanceX", 1, 1, 1, 2, 1.1))
sketch12.addConstraint(Sketcher.Constraint("DistanceY", 0, 2, 0, 1, 3.8))
sketch12.addConstraint(Sketcher.Constraint("DistanceX", -1, 1, 0, 2, 10.0))
sketch12.addConstraint(Sketcher.Constraint("DistanceX", -1, 1, 5, 2, 14.0))
sketch12.addConstraint(Sketcher.Constraint("DistanceY", -1, 1, 0, 2, 1.1))
sketch12.setExpression("Constraints[19]", "Params.sketch12_width")
sketch12.setExpression("Constraints[20]", "Params.sketch12_height")
pocket3 = body.newObject("PartDesign::Pocket", "Pocket002")
pocket3.Profile = sketch12
pocket3.setExpression("Length", "Params.pocket3_length")
doc.recompute()

fillet = body.newObject("PartDesign::Fillet", "Fillet")
fillet.Base = (pocket3, edges_at(pocket3, [
    (-10, 0, -19),
    (-10, 8, -19),
    (14, 6.5, -19),
    (14, 0, -19),
    (10, 6.5, -19),
    (0, 8, -19),
]))
fillet.setExpression("Radius", "Params.fillet_radius")

doc.recompute()
